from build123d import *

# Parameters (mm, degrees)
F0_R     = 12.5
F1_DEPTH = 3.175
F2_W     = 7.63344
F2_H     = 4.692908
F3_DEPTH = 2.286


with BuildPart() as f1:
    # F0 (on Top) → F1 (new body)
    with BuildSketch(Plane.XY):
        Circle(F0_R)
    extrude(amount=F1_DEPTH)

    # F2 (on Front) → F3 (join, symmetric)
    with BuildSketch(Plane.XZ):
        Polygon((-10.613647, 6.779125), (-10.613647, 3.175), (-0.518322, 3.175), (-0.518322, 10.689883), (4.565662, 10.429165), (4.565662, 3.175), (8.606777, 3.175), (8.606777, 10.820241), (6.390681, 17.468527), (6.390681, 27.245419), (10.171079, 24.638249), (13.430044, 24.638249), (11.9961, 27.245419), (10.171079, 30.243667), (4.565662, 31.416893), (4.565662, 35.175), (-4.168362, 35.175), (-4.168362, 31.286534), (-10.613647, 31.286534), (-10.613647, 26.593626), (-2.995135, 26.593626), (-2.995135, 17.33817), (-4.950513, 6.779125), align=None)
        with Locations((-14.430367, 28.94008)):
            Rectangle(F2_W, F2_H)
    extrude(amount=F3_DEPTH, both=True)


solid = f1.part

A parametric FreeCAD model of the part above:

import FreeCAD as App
import Part
import Sketcher
Q = App.Units.Quantity

doc = App.newDocument("Part")
params = doc.addObject("Spreadsheet::Sheet", "Params")
for row, (alias, value) in enumerate([
    ("pad1_length", "0.125 in"),
    ("pad2_length", "0.18 in"),
], start=1):
    params.set(f"A{row}", alias)
    params.set(f"B{row}", "=" + value)
    params.setAlias(f"B{row}", alias)

body = doc.addObject("PartDesign::Body", "Body")

# Sketch on XY plane
sketch1 = body.newObject("Sketcher::SketchObject", "Sketch")
sketch1.AttachmentSupport = (doc.getObject("XY_Plane"), [""])
sketch1.MapMode = "FlatFace"
sketch1.addGeometry(Part.Circle(App.Vector(0, 0, 0), App.Vector(0, 0, 1), 12), False)
sketch1.addConstraint([
    Sketcher.Constraint("Coincident", 0, 3, -1, 1),
    Sketcher.Constraint("Diameter", 0, 25.0),
])
pad1 = body.newObject("PartDesign::Pad", "Pad")
pad1.Profile = sketch1
pad1.setExpression("Length", "Params.pad1_length")

# Sketch on XZ plane
sketch2 = body.newObject("Sketcher::SketchObject", "Sketch001")
sketch2.AttachmentSupport = (doc.getObject("XZ_Plane"), [""])
sketch2.MapMode = "FlatFace"
sketch2.addGeometry([
    Part.LineSegment(App.Vector(-10.6, 6.8, 0), App.Vector(-10.6, 3.2, 0)),  # 0
    Part.LineSegment(App.Vector(-10.6, 3.2, 0), App.Vector(-0.5, 3.2, 0)),  # 1
    Part.LineSegment(App.Vector(-0.5, 3.2, 0), App.Vector(-0.5, 10.7, 0)),  # 2
    Part.LineSegment(App.Vector(-0.5, 10.7, 0), App.Vector(4.6, 10.4, 0)),  # 3
    Part.LineSegment(App.Vector(4.6, 10.4, 0), App.Vector(4.6, 3.2, 0)),  # 4
    Part.LineSegment(App.Vector(4.6, 3.2, 0), App.Vector(8.6, 3.2, 0)),  # 5
    Part.LineSegment(App.Vector(8.6, 3.2, 0), App.Vector(8.6, 10.8, 0)),  # 6
    Part.LineSegment(App.Vector(8.6, 10.8, 0), App.Vector(6.4, 17.5, 0)),  # 7
    Part.LineSegment(App.Vector(6.4, 17.5, 0), App.Vector(6.4, 27.2, 0)),  # 8
    Part.LineSegment(App.Vector(6.4, 27.2, 0), App.Vector(10.2, 24.6, 0)),  # 9
    Part.LineSegment(App.Vector(10.2, 24.6, 0), App.Vector(13.4, 24.6, 0)),  # 10
    Part.LineSegment(App.Vector(13.4, 24.6, 0), App.Vector(12, 27.2, 0)),  # 11
    Part.LineSegment(App.Vector(12, 27.2, 0), App.Vector(10.2, 30.2, 0)),  # 12
    Part.LineSegment(App.Vector(10.2, 30.2, 0), App.Vector(4.6, 31.4, 0)),  # 13
    Part.LineSegment(App.Vector(4.6, 31.4, 0), App.Vector(4.6, 35.2, 0)),  # 14
    Part.LineSegment(App.Vector(4.6, 35.2, 0), App.Vector(-4.2, 35.2, 0)),  # 15
    Part.LineSegment(App.Vector(-4.2, 35.2, 0), App.Vector(-4.2, 31.3, 0)),  # 16
    Part.LineSegment(App.Vector(-4.2, 31.3, 0), App.Vector(-18.2, 31.3, 0)),  # 17
    Part.LineSegment(App.Vector(-18.2, 31.3, 0), App.Vector(-18.2, 26.6, 0)),  # 18
    Part.LineSegment(App.Vector(-18.2, 26.6, 0), App.Vector(-3, 26.6, 0)),  # 19
    Part.LineSegment(App.Vector(-3, 26.6, 0), App.Vector(-3, 17.3, 0)),  # 20
    Part.LineSegment(App.Vector(-3, 17.3, 0), App.Vector(-5, 6.8, 0)),  # 21
    Part.LineSegment(App.Vector(-5, 6.8, 0), App.Vector(-10.6, 6.8, 0)),  # 22
], False)
sketch2.addConstraint([
    Sketcher.Constraint("Coincident", 0, 2, 1, 1),
    Sketcher.Constraint("Coincident", 1, 2, 2, 1),
    Sketcher.Constraint("Coincident", 2, 2, 3, 1),
    Sketcher.Constraint("Coincident", 3, 2, 4, 1),
    Sketcher.Constraint("Coincident", 4, 2, 5, 1),
    Sketcher.Constraint("Coincident", 5, 2, 6, 1),
    Sketcher.Constraint("Coincident", 6, 2, 7, 1),
    Sketcher.Constraint("Coincident", 7, 2, 8, 1),
    Sketcher.Constraint("Coincident", 8, 2, 9, 1),
    Sketcher.Constraint("Coincident", 9, 2, 10, 1),
    Sketcher.Constraint("Coincident", 10, 2, 11, 1),
    Sketcher.Constraint("Coincident", 11, 2, 12, 1),
    Sketcher.Constraint("Coincident", 12, 2, 13, 1),
    Sketcher.Constraint("Coincident", 13, 2, 14, 1),
    Sketcher.Constraint("Coincident", 14, 2, 15, 1),
    Sketcher.Constraint("Coincident", 15, 2, 16, 1),
    Sketcher.Constraint("Coincident", 16, 2, 17, 1),
    Sketcher.Constraint("Coincident", 17, 2, 18, 1),
    Sketcher.Constraint("Coincident", 18, 2, 19, 1),
    Sketcher.Constraint("Coincident", 19, 2, 20, 1),
    Sketcher.Constraint("Coincident", 20, 2, 21, 1),
    Sketcher.Constraint("Coincident", 21, 2, 22, 1),
    Sketcher.Constraint("Coincident", 22, 2, 0, 1),
    Sketcher.Constraint("Vertical", 0),
    Sketcher.Constraint("Horizontal", 1),
    Sketcher.Constraint("Vertical", 2),
    Sketcher.Constraint("Vertical", 4),
    Sketcher.Constraint("Horizontal", 5),
    Sketcher.Constraint("Vertical", 6),
    Sketcher.Constraint("Vertical", 8),
    Sketcher.Constraint("Horizontal", 10),
    Sketcher.Constraint("Vertical", 14),
    Sketcher.Constraint("Horizontal", 15),
    Sketcher.Constraint("Vertical", 16),
    Sketcher.Constraint("Horizontal", 17),
    Sketcher.Constraint("Vertical", 18),
    Sketcher.Constraint("Horizontal", 19),
    Sketcher.Constraint("Vertical", 20),
    Sketcher.Constraint("Horizontal", 22),
    Sketcher.Constraint("Horizontal", 1, 2, 4, 2),
    Sketcher.Constraint("Horizontal", 8, 2, 11, 2),
    Sketcher.Constraint("Vertical", 9, 2, 12, 2),
    Sketcher.Constraint("Vertical", 4, 2, 13, 2),
    Sketcher.Constraint("DistanceY", -1, 1, 0, 2, Q("0.125 in")),
    Sketcher.Constraint("DistanceY", 6, 1, 6, 2, 7.645241),
    Sketcher.Constraint("DistanceY", 8, 1, 8, 2, 9.776892),
    Sketcher.Constraint("DistanceX", -1, 1, 11, 2, 11.9961),
    Sketcher.Constraint("DistanceY", -1, 1, 14, 2, 35.175),
    Sketcher.Constraint("DistanceX", 1, 2, 5, 2, 9.125099),
    Sketcher.Constraint("DistanceX", 8, 2, 9, 2, 3.780398),
    Sketcher.Constraint("DistanceX", 2, 2, 9, 2, 10.689401),
    Sketcher.Constraint("Distance", 7, 7.007909),
    Sketcher.Constraint("Distance", 9, 4.592248),
    Sketcher.Constraint("Distance", 11, 2.975488),
    Sketcher.Constraint("Distance", 13, 5.72688),
    Sketcher.Constraint("DistanceX", 1, 1, 1, 2, 10.095325),
    Sketcher.Constraint("DistanceX", 5, 1, 5, 2, 4.041115),
    Sketcher.Constraint("DistanceX", 10, 1, 10, 2, 3.258965),
    Sketcher.Constraint("DistanceX", 15, 2, 15, 1, 8.734024),
    Sketcher.Constraint("DistanceX", 17, 2, 17, 1, 14.078725),
    Sketcher.Constraint("DistanceX", 19, 1, 19, 2, 15.251952),
    Sketcher.Constraint("DistanceX", 22, 2, 22, 1, 5.663134),
    Sketcher.Constraint("DistanceY", 0, 2, 0, 1, 3.604125),
    Sketcher.Constraint("DistanceY", 2, 1, 2, 2, 7.514883),
    Sketcher.Constraint("DistanceY", 4, 2, 4, 1, 7.254165),
    Sketcher.Constraint("DistanceY", 14, 1, 14, 2, 3.758107),
    Sketcher.Constraint("DistanceY", 16, 2, 16, 1, 3.888466),
    Sketcher.Constraint("DistanceY", 18, 2, 18, 1, 4.692908),
    Sketcher.Constraint("DistanceY", 20, 2, 20, 1, 9.255456),
])
pad2 = body.newObject("PartDesign::Pad", "Pad001")
pad2.Profile = sketch2
pad2.setExpression("Length", "Params.pad2_length")
pad2.Midplane = True

doc.recompute()
